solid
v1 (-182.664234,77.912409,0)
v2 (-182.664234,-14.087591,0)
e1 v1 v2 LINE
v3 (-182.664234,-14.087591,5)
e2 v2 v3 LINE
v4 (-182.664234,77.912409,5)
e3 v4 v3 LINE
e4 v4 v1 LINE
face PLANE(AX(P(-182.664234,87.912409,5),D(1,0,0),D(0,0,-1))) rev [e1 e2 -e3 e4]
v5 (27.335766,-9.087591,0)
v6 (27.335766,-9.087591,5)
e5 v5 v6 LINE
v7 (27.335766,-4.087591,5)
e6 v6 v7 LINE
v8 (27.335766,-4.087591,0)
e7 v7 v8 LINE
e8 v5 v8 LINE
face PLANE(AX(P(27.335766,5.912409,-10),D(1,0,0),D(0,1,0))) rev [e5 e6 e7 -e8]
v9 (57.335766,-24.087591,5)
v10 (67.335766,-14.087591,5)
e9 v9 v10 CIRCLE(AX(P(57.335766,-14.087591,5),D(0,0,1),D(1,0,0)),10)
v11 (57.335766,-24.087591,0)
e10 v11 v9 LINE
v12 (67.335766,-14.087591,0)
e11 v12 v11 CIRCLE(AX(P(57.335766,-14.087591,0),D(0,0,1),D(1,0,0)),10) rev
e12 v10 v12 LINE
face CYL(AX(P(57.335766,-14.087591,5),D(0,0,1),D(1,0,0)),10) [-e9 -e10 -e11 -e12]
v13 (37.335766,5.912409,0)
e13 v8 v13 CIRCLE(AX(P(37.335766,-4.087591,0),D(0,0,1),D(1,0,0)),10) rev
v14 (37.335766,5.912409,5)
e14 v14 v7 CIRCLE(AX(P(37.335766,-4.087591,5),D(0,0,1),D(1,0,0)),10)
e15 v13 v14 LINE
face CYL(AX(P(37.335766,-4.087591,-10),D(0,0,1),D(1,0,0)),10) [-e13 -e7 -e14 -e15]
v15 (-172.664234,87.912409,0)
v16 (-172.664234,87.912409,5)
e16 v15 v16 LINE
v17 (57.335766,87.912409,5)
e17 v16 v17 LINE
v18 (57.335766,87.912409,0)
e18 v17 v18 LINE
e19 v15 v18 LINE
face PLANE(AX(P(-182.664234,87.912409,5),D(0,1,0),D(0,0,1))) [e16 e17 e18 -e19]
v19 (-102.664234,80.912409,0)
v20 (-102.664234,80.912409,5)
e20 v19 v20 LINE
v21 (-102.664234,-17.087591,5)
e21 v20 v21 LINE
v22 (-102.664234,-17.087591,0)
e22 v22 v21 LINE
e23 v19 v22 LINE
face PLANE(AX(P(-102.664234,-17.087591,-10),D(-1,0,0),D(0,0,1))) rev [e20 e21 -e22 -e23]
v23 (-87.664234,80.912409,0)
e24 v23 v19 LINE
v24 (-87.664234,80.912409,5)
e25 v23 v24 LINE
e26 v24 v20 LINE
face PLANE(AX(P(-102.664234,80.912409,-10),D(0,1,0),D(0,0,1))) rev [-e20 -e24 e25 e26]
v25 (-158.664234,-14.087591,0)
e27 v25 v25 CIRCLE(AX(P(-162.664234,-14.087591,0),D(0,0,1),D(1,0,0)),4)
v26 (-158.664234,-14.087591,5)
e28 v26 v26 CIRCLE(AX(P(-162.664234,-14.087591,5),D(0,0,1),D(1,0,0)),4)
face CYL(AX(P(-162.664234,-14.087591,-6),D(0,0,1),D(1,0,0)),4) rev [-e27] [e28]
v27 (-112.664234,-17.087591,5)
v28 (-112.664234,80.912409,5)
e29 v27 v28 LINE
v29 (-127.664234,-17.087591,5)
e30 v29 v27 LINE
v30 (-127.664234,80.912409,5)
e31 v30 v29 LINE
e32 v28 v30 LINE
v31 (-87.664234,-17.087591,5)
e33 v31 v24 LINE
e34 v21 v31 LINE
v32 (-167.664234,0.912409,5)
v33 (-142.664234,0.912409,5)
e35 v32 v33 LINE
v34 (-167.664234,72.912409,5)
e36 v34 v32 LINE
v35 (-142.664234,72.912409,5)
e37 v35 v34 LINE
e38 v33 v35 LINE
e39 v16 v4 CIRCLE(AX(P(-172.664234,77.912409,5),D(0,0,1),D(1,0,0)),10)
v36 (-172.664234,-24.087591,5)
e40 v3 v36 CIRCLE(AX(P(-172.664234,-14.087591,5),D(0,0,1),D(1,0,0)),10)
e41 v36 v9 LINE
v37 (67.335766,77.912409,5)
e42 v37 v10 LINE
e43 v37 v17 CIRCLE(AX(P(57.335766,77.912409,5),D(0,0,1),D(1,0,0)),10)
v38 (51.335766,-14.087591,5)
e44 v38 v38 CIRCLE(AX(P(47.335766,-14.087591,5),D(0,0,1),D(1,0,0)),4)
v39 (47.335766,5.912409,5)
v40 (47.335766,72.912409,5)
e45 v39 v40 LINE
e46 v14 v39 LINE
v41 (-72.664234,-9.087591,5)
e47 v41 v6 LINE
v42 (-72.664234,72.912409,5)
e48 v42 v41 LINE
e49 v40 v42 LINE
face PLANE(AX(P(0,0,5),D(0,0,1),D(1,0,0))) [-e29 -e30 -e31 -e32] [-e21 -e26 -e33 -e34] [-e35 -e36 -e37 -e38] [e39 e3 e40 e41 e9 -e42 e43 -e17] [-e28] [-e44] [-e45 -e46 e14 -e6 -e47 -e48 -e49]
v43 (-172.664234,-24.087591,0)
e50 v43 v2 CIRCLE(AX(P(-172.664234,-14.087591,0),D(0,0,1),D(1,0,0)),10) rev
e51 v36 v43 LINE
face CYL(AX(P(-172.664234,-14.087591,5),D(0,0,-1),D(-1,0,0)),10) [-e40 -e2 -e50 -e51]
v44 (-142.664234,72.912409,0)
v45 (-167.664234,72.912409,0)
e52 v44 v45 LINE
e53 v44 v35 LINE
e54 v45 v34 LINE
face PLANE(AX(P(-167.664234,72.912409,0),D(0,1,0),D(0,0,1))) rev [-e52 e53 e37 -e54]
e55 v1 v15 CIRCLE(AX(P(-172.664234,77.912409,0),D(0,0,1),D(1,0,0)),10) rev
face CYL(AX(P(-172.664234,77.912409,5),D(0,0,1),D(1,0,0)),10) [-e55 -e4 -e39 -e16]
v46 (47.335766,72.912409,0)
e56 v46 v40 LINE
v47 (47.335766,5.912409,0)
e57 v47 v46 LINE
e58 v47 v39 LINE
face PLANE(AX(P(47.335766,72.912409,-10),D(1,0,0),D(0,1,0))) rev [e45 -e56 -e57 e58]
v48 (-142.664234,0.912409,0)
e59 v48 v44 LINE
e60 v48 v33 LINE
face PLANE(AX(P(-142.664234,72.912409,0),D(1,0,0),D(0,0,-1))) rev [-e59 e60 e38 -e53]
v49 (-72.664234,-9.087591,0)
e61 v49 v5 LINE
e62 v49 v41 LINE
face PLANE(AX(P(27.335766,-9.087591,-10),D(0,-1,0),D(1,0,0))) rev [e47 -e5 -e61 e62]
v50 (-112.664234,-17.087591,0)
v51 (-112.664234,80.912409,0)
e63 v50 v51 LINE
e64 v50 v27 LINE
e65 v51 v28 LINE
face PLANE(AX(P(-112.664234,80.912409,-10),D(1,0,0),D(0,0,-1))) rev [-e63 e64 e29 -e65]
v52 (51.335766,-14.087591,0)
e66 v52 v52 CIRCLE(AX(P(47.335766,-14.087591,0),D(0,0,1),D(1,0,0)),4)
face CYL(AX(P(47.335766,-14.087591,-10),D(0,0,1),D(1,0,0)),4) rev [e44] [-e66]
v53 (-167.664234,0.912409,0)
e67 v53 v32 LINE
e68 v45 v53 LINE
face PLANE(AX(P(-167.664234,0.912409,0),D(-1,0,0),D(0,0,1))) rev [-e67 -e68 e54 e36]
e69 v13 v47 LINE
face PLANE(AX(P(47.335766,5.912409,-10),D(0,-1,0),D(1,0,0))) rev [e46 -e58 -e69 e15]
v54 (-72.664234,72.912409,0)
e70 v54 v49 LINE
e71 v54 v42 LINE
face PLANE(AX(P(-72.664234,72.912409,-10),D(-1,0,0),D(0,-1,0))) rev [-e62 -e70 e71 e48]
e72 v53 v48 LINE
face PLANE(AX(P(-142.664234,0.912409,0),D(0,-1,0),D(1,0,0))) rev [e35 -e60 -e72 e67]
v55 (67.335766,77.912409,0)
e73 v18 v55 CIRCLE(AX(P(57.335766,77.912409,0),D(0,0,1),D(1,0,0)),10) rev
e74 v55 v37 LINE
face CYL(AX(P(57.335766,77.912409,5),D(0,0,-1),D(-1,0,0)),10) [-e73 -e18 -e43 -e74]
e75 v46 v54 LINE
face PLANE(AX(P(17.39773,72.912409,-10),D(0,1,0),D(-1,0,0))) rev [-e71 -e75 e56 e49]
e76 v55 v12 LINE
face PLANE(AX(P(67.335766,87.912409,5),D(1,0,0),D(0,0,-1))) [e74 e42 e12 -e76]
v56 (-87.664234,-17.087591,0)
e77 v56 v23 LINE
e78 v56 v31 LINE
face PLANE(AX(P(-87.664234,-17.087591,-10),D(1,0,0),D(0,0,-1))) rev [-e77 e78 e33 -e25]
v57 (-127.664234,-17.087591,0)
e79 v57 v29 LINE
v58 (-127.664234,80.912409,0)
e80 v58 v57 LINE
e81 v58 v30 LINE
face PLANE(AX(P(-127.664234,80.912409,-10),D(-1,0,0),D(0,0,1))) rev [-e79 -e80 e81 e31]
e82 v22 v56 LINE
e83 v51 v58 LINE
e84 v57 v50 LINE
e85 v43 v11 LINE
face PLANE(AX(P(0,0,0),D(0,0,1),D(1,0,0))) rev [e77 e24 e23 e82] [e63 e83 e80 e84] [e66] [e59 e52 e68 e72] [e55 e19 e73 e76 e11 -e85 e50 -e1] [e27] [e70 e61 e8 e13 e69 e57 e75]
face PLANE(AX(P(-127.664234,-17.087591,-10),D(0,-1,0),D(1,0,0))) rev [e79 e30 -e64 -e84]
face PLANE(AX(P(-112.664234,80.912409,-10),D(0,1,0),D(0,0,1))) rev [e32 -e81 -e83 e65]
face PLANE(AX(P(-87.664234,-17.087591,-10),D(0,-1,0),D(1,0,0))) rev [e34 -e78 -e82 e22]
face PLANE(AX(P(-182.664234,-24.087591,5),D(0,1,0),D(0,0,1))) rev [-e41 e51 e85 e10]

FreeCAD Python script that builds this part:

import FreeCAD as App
import Part
import Sketcher
from FreeCAD import Vector


def edges_at(feature, points):
    """Names of the edges that pass closest to the given points."""
    edges = feature.Shape.Edges
    near = lambda p: min(range(len(edges)), key=lambda i: edges[i].distToShape(Part.Vertex(*p))[0])
    return sorted({f"Edge{near(p) + 1}" for p in points})


def add_polygon(sketch, points):
    """Adds a closed chain of lines whose ends are joined by coincident constraints."""
    first, n = sketch.GeometryCount, len(points)
    for a, b in zip(points, points[1:] + points[:1]):
        sketch.addGeometry(Part.LineSegment(App.Vector(*a, 0), App.Vector(*b, 0)), False)
    for i in range(n):
        sketch.addConstraint(Sketcher.Constraint("Coincident", first + i, 2, first + (i + 1) % n, 1))

doc = App.newDocument("Part")
params = doc.addObject("Spreadsheet::Sheet", "Params")
for row, (alias, value) in enumerate([
    ("sketch1_width", "250 mm"),
    ("sketch1_height", "112 mm"),
    ("pad1_length", "5 mm"),
    ("sketch2_diameter", "8 mm"),
    ("pocket1_length", "11 mm"),
    ("sketch3_diameter", "8 mm"),
    ("pocket2_length", "15 mm"),
    ("sketch4_width", "15 mm"),
    ("sketch4_height", "98 mm"),
    ("pocket3_length", "15 mm"),
    ("sketch5_width", "100 mm"),
    ("sketch5_width2", "20 mm"),
    ("sketch5_height", "82 mm"),
    ("sketch5_height2", "15 mm"),
    ("pocket4_length", "15 mm"),
    ("fillet_radius", "10 mm"),
    ("sketch6_width", "25 mm"),
    ("sketch6_height", "72 mm"),
    ("pocket5_length", "5 mm"),
], start=1):
    params.set(f"A{row}", alias)
    params.set(f"B{row}", "=" + value)
    params.setAlias(f"B{row}", alias)

body = doc.addObject("PartDesign::Body", "Body")

# Sketch on XY plane
sketch1 = body.newObject("Sketcher::SketchObject", "Sketch")
sketch1.AttachmentSupport = (doc.getObject("XY_Plane"), [""])
sketch1.MapMode = "FlatFace"
add_polygon(sketch1, [(-183, 88), (-183, -24), (67, -24), (67, 88)])  # lines 0-3
sketch1.addConstraint([
    Sketcher.Constraint("Vertical", 0),
    Sketcher.Constraint("Horizontal", 1),
    Sketcher.Constraint("Vertical", 2),
    Sketcher.Constraint("Horizontal", 3),
    Sketcher.Constraint("DistanceX", 1, 1, 1, 2, 250.0),
    Sketcher.Constraint("DistanceY", 0, 2, 0, 1, 112.0),
    Sketcher.Constraint("DistanceY", 0, 2, -1, 1, 24.087591),
    Sketcher.Constraint("DistanceX", 0, 2, -1, 1, 182.664234),
])
sketch1.setExpression("Constraints[8]", "Params.sketch1_width")
sketch1.setExpression("Constraints[9]", "Params.sketch1_height")
pad1 = body.newObject("PartDesign::Pad", "Pad")
pad1.Profile = sketch1
pad1.setExpression("Length", "Params.pad1_length")

# Sketch on XY plane
sketch2 = body.newObject("Sketcher::SketchObject", "Sketch001")
sketch2.AttachmentSupport = (doc.getObject("XY_Plane"), [""])
sketch2.MapMode = "FlatFace"
sketch2.AttachmentOffset = App.Placement(Vector(0, 0, 5), App.Rotation())
sketch2.addGeometry(Part.Circle(Vector(-162.7, -14.1, 0), Vector(0, 0, 1), 4), False)
sketch2.addConstraint([
    Sketcher.Constraint("Diameter", 0, 8.0),
    Sketcher.Constraint("DistanceY", 0, 3, -1, 1, 14.087591),
    Sketcher.Constraint("DistanceX", 0, 3, -1, 1, 162.664234),
])
sketch2.setExpression("Constraints[0]", "Params.sketch2_diameter")
pocket1 = body.newObject("PartDesign::Pocket", "Pocket")
pocket1.Profile = sketch2
pocket1.setExpression("Length", "Params.pocket1_length")

# Sketch on XY plane
sketch3 = body.newObject("Sketcher::SketchObject", "Sketch002")
sketch3.AttachmentSupport = (doc.getObject("XY_Plane"), [""])
sketch3.MapMode = "FlatFace"
sketch3.AttachmentOffset = App.Placement(Vector(0, 0, 5), App.Rotation())
sketch3.addGeometry(Part.Circle(Vector(47.3, -14.1, 0), Vector(0, 0, 1), 4), False)
sketch3.addConstraint([
    Sketcher.Constraint("Diameter", 0, 8.0),
    Sketcher.Constraint("DistanceY", 0, 3, -1, 1, 14.087591),
    Sketcher.Constraint("DistanceX", -1, 1, 0, 3, 47.335766),
])
sketch3.setExpression("Constraints[0]", "Params.sketch3_diameter")
pocket2 = body.newObject("PartDesign::Pocket", "Pocket001")
pocket2.Profile = sketch3
pocket2.setExpression("Length", "Params.pocket2_length")

# Sketch on XY plane
sketch4 = body.newObject("Sketcher::SketchObject", "Sketch003")
sketch4.AttachmentSupport = (doc.getObject("XY_Plane"), [""])
sketch4.MapMode = "FlatFace"
sketch4.AttachmentOffset = App.Placement(Vector(0, 0, 5), App.Rotation())
add_polygon(sketch4, [(-128, 81), (-128, -17), (-113, -17), (-113, 81)])  # lines 0-3
add_polygon(sketch4, [(-103, 81), (-103, -17), (-88, -17), (-88, 81)])  # lines 4-7
sketch4.addConstraint([
    Sketcher.Constraint("Vertical", 0),
    Sketcher.Constraint("Horizontal", 1),
    Sketcher.Constraint("Vertical", 2),
    Sketcher.Constraint("Horizontal", 3),
    Sketcher.Constraint("Vertical", 4),
    Sketcher.Constraint("Horizontal", 5),
    Sketcher.Constraint("Vertical", 6),
    Sketcher.Constraint("Horizontal", 7),
    Sketcher.Constraint("Horizontal", 1, 2, 4, 2),
    Sketcher.Constraint("Horizontal", 3, 2, 6, 2),
    Sketcher.Constraint("Equal", 3, 5),
    Sketcher.Constraint("DistanceX", 1, 1, 1, 2, 15.0),
    Sketcher.Constraint("DistanceY", 0, 2, 0, 1, 98.0),
    Sketcher.Constraint("DistanceX", 1, 2, 4, 2, 10.0),
    Sketcher.Constraint("DistanceY", 0, 2, -1, 1, 17.087591),
    Sketcher.Constraint("DistanceX", 0, 2, -1, 1, 127.664234),
])
sketch4.setExpression("Constraints[19]", "Params.sketch4_width")
sketch4.setExpression("Constraints[20]", "Params.sketch4_height")
pocket3 = body.newObject("PartDesign::Pocket", "Pocket002")
pocket3.Profile = sketch4
pocket3.setExpression("Length", "Params.pocket3_length")

# Sketch on XY plane
sketch5 = body.newObject("Sketcher::SketchObject", "Sketch004")
sketch5.AttachmentSupport = (doc.getObject("XY_Plane"), [""])
sketch5.MapMode = "FlatFace"
sketch5.AttachmentOffset = App.Placement(Vector(0, 0, 5), App.Rotation())
add_polygon(sketch5, [(-73, 73), (-73, -9), (27, -9), (27, 6), (47, 6), (47, 73)])  # lines 0-5
sketch5.addConstraint([
    Sketcher.Constraint("Vertical", 0),
    Sketcher.Constraint("Horizontal", 1),
    Sketcher.Constraint("Vertical", 2),
    Sketcher.Constraint("Horizontal", 3),
    Sketcher.Constraint("Vertical", 4),
    Sketcher.Constraint("Horizontal", 5),
    Sketcher.Constraint("DistanceX", 1, 1, 1, 2, 100.0),
    Sketcher.Constraint("DistanceX", 3, 1, 3, 2, 20.0),
    Sketcher.Constraint("DistanceY", 0, 2, 0, 1, 82.0),
    Sketcher.Constraint("DistanceY", 2, 1, 2, 2, 15.0),
    Sketcher.Constraint("DistanceY", 0, 2, -1, 1, 9.087591),
    Sketcher.Constraint("DistanceX", 0, 2, -1, 1, 72.664234),
])
sketch5.setExpression("Constraints[12]", "Params.sketch5_width")
sketch5.setExpression("Constraints[13]", "Params.sketch5_width2")
sketch5.setExpression("Constraints[14]", "Params.sketch5_height")
sketch5.setExpression("Constraints[15]", "Params.sketch5_height2")
pocket4 = body.newObject("PartDesign::Pocket", "Pocket003")
pocket4.Profile = sketch5
pocket4.setExpression("Length", "Params.pocket4_length")
doc.recompute()

fillet = body.newObject("PartDesign::Fillet", "Fillet")
fillet.Base = (pocket4, edges_at(pocket4, [
    (27.336, 5.912, 2.5),
    (-182.664, 87.912, 2.5),
    (67.336, 87.912, 2.5),
    (67.336, -24.088, 2.5),
    (-182.664, -24.088, 2.5),
]))
fillet.setExpression("Radius", "Params.fillet_radius")

# Sketch on XY plane
sketch6 = body.newObject("Sketcher::SketchObject", "Sketch005")
sketch6.AttachmentSupport = (doc.getObject("XY_Plane"), [""])
sketch6.MapMode = "FlatFace"
sketch6.AttachmentOffset = App.Placement(Vector(0, 0, 5), App.Rotation())
add_polygon(sketch6, [(-168, 73), (-168, 1), (-143, 1), (-143, 73)])  # lines 0-3
sketch6.addConstraint([
    Sketcher.Constraint("Vertical", 0),
    Sketcher.Constraint("Horizontal", 1),
    Sketcher.Constraint("Vertical", 2),
    Sketcher.Constraint("Horizontal", 3),
    Sketcher.Constraint("DistanceX", 1, 1, 1, 2, 25.0),
    Sketcher.Constraint("DistanceY", 0, 2, 0, 1, 72.0),
    Sketcher.Constraint("DistanceY", -1, 1, 0, 2, 0.912409),
    Sketcher.Constraint("DistanceX", 0, 2, -1, 1, 167.664234),
])
sketch6.setExpression("Constraints[8]", "Params.sketch6_width")
sketch6.setExpression("Constraints[9]", "Params.sketch6_height")
pocket5 = body.newObject("PartDesign::Pocket", "Pocket004")
pocket5.Profile = sketch6
pocket5.setExpression("Length", "Params.pocket5_length")

doc.recompute()
